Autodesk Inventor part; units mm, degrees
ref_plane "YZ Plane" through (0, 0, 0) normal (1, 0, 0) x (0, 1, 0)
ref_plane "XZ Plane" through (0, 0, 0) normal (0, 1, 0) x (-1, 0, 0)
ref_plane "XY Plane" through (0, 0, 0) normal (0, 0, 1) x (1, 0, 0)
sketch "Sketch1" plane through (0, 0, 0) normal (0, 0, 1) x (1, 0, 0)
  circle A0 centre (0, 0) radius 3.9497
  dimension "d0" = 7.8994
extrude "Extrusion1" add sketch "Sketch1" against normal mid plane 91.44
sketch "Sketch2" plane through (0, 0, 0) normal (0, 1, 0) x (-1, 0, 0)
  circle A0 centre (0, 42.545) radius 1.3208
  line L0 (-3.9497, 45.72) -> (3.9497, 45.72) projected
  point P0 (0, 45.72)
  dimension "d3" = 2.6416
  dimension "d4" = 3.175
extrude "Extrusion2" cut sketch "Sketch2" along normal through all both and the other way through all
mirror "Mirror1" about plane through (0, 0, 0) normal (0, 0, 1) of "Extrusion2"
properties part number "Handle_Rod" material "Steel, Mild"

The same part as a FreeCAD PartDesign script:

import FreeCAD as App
import Part
import Sketcher
Q = App.Units.Quantity

doc = App.newDocument("Part")
body = doc.addObject("PartDesign::Body", "Body")

sketch1 = body.newObject("Sketcher::SketchObject", "Sketch")
sketch1.AttachmentSupport = (doc.getObject("XY_Plane"), [""])
sketch1.MapMode = "FlatFace"
sketch1.addGeometry(Part.Circle(App.Vector(0, 0, 0), App.Vector(0, 0, 1), 3.9), False)
sketch1.addConstraint(Sketcher.Constraint("Coincident", 0, 3, -1, 1))
sketch1.addConstraint(Sketcher.Constraint("Diameter", 0, Q("0.311 in")))
pad1 = body.newObject("PartDesign::Pad", "Pad")
pad1.Profile = sketch1
pad1.Length = Q("3.6 in")
pad1.Midplane = True

sketch2 = body.newObject("Sketcher::SketchObject", "Sketch001")
sketch2.AttachmentSupport = (doc.getObject("XZ_Plane"), [""])
sketch2.MapMode = "FlatFace"
sketch2.addGeometry(Part.Circle(App.Vector(0, 42.5, 0), App.Vector(0, 0, 1), 1.3), False)
sketch2.addConstraint(Sketcher.Constraint("PointOnObject", 0, 3, -2))
sketch2.addConstraint(Sketcher.Constraint("Diameter", 0, Q("0.104 in")))
sketch2.addConstraint(Sketcher.Constraint("DistanceY", -1, 1, 0, 3, Q("1.675 in")))
pocket1 = body.newObject("PartDesign::Pocket", "Pocket")
pocket1.Profile = sketch2
pocket1.Type = "ThroughAll"
pocket1.Midplane = True
doc.recompute()

mirrored = body.newObject("PartDesign::Mirrored", "Mirrored")
mirrored.Originals = [pocket1]
mirrored.MirrorPlane = (doc.getObject("XY_Plane"), [""])
body.Tip = mirrored

doc.recompute()
